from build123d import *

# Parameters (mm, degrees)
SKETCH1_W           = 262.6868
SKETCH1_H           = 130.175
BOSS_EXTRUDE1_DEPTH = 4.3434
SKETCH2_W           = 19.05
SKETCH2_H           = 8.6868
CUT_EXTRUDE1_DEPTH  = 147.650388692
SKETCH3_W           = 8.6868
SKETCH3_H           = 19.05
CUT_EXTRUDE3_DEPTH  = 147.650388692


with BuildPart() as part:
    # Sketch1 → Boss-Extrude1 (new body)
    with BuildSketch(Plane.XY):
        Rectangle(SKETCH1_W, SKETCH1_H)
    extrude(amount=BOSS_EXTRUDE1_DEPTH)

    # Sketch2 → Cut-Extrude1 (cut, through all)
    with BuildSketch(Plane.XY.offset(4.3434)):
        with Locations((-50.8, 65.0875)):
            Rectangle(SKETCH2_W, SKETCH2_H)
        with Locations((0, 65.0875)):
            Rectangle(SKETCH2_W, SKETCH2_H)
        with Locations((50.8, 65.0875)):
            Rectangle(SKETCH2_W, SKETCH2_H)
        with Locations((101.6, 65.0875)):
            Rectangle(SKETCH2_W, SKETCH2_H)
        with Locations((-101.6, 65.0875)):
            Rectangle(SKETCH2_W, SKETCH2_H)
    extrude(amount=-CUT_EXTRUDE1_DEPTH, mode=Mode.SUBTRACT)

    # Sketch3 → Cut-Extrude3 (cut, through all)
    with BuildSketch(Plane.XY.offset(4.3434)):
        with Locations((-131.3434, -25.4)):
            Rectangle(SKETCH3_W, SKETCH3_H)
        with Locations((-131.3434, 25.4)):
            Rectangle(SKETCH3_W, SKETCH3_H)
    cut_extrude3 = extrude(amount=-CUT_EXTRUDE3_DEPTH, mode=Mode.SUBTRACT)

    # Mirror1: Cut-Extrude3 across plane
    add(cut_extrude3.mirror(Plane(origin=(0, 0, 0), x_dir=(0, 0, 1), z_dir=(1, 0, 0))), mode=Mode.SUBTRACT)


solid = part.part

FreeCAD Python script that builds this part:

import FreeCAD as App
import Part
import Sketcher

V = App.Vector
Q = App.Units.Quantity

doc = App.newDocument("Part")
body = doc.addObject("PartDesign::Body", "Body")

sketch1 = doc.addObject("Sketcher::SketchObject", "Sketch")
body.addObject(sketch1)
sketch1.AttachmentSupport = (doc.XY_Plane, [""])
sketch1.MapMode = "FlatFace"
sketch1.addGeometry([
    Part.LineSegment(V(-131, 65, 0), V(-131, -65, 0)),
    Part.LineSegment(V(-131, -65, 0), V(131, -65, 0)),
    Part.LineSegment(V(131, -65, 0), V(131, 65, 0)),
    Part.LineSegment(V(131, 65, 0), V(-131, 65, 0)),
], False)
sketch1.addConstraint([
    Sketcher.Constraint("Coincident", 0, 2, 1, 1),
    Sketcher.Constraint("Coincident", 1, 2, 2, 1),
    Sketcher.Constraint("Coincident", 2, 2, 3, 1),
    Sketcher.Constraint("Coincident", 3, 2, 0, 1),
    Sketcher.Constraint("Vertical", 0),
    Sketcher.Constraint("Horizontal", 1),
    Sketcher.Constraint("Vertical", 2),
    Sketcher.Constraint("Horizontal", 3),
    Sketcher.Constraint("Symmetric", 0, 2, 2, 2, -1, 1),
    Sketcher.Constraint("DistanceX", 1, 1, 1, 2, Q("10.342 in")),
    Sketcher.Constraint("DistanceY", 0, 2, 0, 1, Q("5.125 in")),
])
pad1 = doc.addObject("PartDesign::Pad", "Pad")
body.addObject(pad1)
pad1.Profile = sketch1
pad1.Length = Q("0.171 in")

sketch2 = doc.addObject("Sketcher::SketchObject", "Sketch001")
body.addObject(sketch2)
sketch2.AttachmentSupport = (doc.XY_Plane, [""])
sketch2.MapMode = "FlatFace"
sketch2.AttachmentOffset = App.Placement(V(0, 0, 0.171 * 25.4), App.Rotation())
sketch2.addGeometry([
    Part.LineSegment(V(-60, 69, 0), V(-60, 61, 0)),
    Part.LineSegment(V(-60, 61, 0), V(-41, 61, 0)),
    Part.LineSegment(V(-41, 61, 0), V(-41, 69, 0)),
    Part.LineSegment(V(-41, 69, 0), V(-60, 69, 0)),
    Part.LineSegment(V(-10, 69, 0), V(-10, 61, 0)),
    Part.LineSegment(V(-10, 61, 0), V(10, 61, 0)),
    Part.LineSegment(V(10, 61, 0), V(10, 69, 0)),
    Part.LineSegment(V(10, 69, 0), V(-10, 69, 0)),
    Part.LineSegment(V(41, 69, 0), V(41, 61, 0)),
    Part.LineSegment(V(41, 61, 0), V(60, 61, 0)),
    Part.LineSegment(V(60, 61, 0), V(60, 69, 0)),
    Part.LineSegment(V(60, 69, 0), V(41, 69, 0)),
    Part.LineSegment(V(92, 69, 0), V(92, 61, 0)),
    Part.LineSegment(V(92, 61, 0), V(111, 61, 0)),
    Part.LineSegment(V(111, 61, 0), V(111, 69, 0)),
    Part.LineSegment(V(111, 69, 0), V(92, 69, 0)),
    Part.LineSegment(V(-111, 69, 0), V(-111, 61, 0)),
    Part.LineSegment(V(-111, 61, 0), V(-92, 61, 0)),
    Part.LineSegment(V(-92, 61, 0), V(-92, 69, 0)),
    Part.LineSegment(V(-92, 69, 0), V(-111, 69, 0)),
], False)
sketch2.addConstraint([
    Sketcher.Constraint("Coincident", 0, 2, 1, 1),
    Sketcher.Constraint("Coincident", 1, 2, 2, 1),
    Sketcher.Constraint("Coincident", 2, 2, 3, 1),
    Sketcher.Constraint("Coincident", 3, 2, 0, 1),
    Sketcher.Constraint("Coincident", 4, 2, 5, 1),
    Sketcher.Constraint("Coincident", 5, 2, 6, 1),
    Sketcher.Constraint("Coincident", 6, 2, 7, 1),
    Sketcher.Constraint("Coincident", 7, 2, 4, 1),
    Sketcher.Constraint("Coincident", 8, 2, 9, 1),
    Sketcher.Constraint("Coincident", 9, 2, 10, 1),
    Sketcher.Constraint("Coincident", 10, 2, 11, 1),
    Sketcher.Constraint("Coincident", 11, 2, 8, 1),
    Sketcher.Constraint("Coincident", 12, 2, 13, 1),
    Sketcher.Constraint("Coincident", 13, 2, 14, 1),
    Sketcher.Constraint("Coincident", 14, 2, 15, 1),
    Sketcher.Constraint("Coincident", 15, 2, 12, 1),
    Sketcher.Constraint("Coincident", 16, 2, 17, 1),
    Sketcher.Constraint("Coincident", 17, 2, 18, 1),
    Sketcher.Constraint("Coincident", 18, 2, 19, 1),
    Sketcher.Constraint("Coincident", 19, 2, 16, 1),
    Sketcher.Constraint("Vertical", 0),
    Sketcher.Constraint("Horizontal", 1),
    Sketcher.Constraint("Vertical", 2),
    Sketcher.Constraint("Horizontal", 3),
    Sketcher.Constraint("Vertical", 4),
    Sketcher.Constraint("Horizontal", 5),
    Sketcher.Constraint("Vertical", 6),
    Sketcher.Constraint("Horizontal", 7),
    Sketcher.Constraint("Vertical", 8),
    Sketcher.Constraint("Horizontal", 9),
    Sketcher.Constraint("Vertical", 10),
    Sketcher.Constraint("Horizontal", 11),
    Sketcher.Constraint("Vertical", 12),
    Sketcher.Constraint("Horizontal", 13),
    Sketcher.Constraint("Vertical", 14),
    Sketcher.Constraint("Horizontal", 15),
    Sketcher.Constraint("Vertical", 16),
    Sketcher.Constraint("Horizontal", 17),
    Sketcher.Constraint("Vertical", 18),
    Sketcher.Constraint("Horizontal", 19),
    Sketcher.Constraint("Symmetric", 1, 2, 8, 2, -2),
    Sketcher.Constraint("Symmetric", 3, 2, 10, 2, -2),
    Sketcher.Constraint("Symmetric", 13, 2, 16, 2, -2),
    Sketcher.Constraint("Symmetric", 15, 2, 18, 2, -2),
    Sketcher.Constraint("Horizontal", 1, 2, 4, 2),
    Sketcher.Constraint("Horizontal", 3, 2, 6, 2),
    Sketcher.Constraint("Horizontal", 9, 2, 12, 2),
    Sketcher.Constraint("Horizontal", 11, 2, 14, 2),
    Sketcher.Constraint("Equal", 3, 5),
    Sketcher.Constraint("Equal", 11, 13),
    Sketcher.Constraint("DistanceX", 0, 2, 4, 2, Q("2 in")),
    Sketcher.Constraint("DistanceX", 4, 2, 8, 2, Q("2 in")),
    Sketcher.Constraint("DistanceX", 8, 2, 12, 2, Q("2 in")),
    Sketcher.Constraint("DistanceX", 1, 1, 1, 2, Q("0.75 in")),
    Sketcher.Constraint("DistanceY", 0, 2, 0, 1, Q("0.342 in")),
    Sketcher.Constraint("DistanceY", -1, 1, 0, 2, Q("2.3915 in")),
])
pocket1 = doc.addObject("PartDesign::Pocket", "Pocket")
body.addObject(pocket1)
pocket1.Profile = sketch2
pocket1.Type = "ThroughAll"

sketch3 = doc.addObject("Sketcher::SketchObject", "Sketch002")
body.addObject(sketch3)
sketch3.AttachmentSupport = (doc.XY_Plane, [""])
sketch3.MapMode = "FlatFace"
sketch3.AttachmentOffset = App.Placement(V(0, 0, 0.171 * 25.4), App.Rotation())
sketch3.addGeometry([
    Part.LineSegment(V(-136, -16, 0), V(-136, -35, 0)),
    Part.LineSegment(V(-136, -35, 0), V(-127, -35, 0)),
    Part.LineSegment(V(-127, -35, 0), V(-127, -16, 0)),
    Part.LineSegment(V(-127, -16, 0), V(-136, -16, 0)),
    Part.LineSegment(V(-136, 35, 0), V(-136, 16, 0)),
    Part.LineSegment(V(-136, 16, 0), V(-127, 16, 0)),
    Part.LineSegment(V(-127, 16, 0), V(-127, 35, 0)),
    Part.LineSegment(V(-127, 35, 0), V(-136, 35, 0)),
], False)
sketch3.addConstraint([
    Sketcher.Constraint("Coincident", 0, 2, 1, 1),
    Sketcher.Constraint("Coincident", 1, 2, 2, 1),
    Sketcher.Constraint("Coincident", 2, 2, 3, 1),
    Sketcher.Constraint("Coincident", 3, 2, 0, 1),
    Sketcher.Constraint("Coincident", 4, 2, 5, 1),
    Sketcher.Constraint("Coincident", 5, 2, 6, 1),
    Sketcher.Constraint("Coincident", 6, 2, 7, 1),
    Sketcher.Constraint("Coincident", 7, 2, 4, 1),
    Sketcher.Constraint("Vertical", 0),
    Sketcher.Constraint("Horizontal", 1),
    Sketcher.Constraint("Vertical", 2),
    Sketcher.Constraint("Horizontal", 3),
    Sketcher.Constraint("Vertical", 4),
    Sketcher.Constraint("Horizontal", 5),
    Sketcher.Constraint("Vertical", 6),
    Sketcher.Constraint("Horizontal", 7),
    Sketcher.Constraint("Symmetric", 3, 2, 4, 2, -1),
    Sketcher.Constraint("Symmetric", 1, 2, 6, 2, -1),
    Sketcher.Constraint("DistanceX", 1, 2, -1, 1, Q("5 in")),
    Sketcher.Constraint("DistanceY", 0, 2, 4, 2, Q("2 in")),
    Sketcher.Constraint("DistanceY", 0, 2, 0, 1, Q("0.75 in")),
    Sketcher.Constraint("DistanceX", 1, 1, 1, 2, Q("0.342 in")),
])
pocket2 = doc.addObject("PartDesign::Pocket", "Pocket001")
body.addObject(pocket2)
pocket2.Profile = sketch3
pocket2.Type = "ThroughAll"
doc.recompute()

mirrored = doc.addObject("PartDesign::Mirrored", "Mirrored")
body.addObject(mirrored)
mirrored.Originals = [pocket2]
mirrored.MirrorPlane = (doc.YZ_Plane, [""])
body.Tip = mirrored

doc.recompute()
